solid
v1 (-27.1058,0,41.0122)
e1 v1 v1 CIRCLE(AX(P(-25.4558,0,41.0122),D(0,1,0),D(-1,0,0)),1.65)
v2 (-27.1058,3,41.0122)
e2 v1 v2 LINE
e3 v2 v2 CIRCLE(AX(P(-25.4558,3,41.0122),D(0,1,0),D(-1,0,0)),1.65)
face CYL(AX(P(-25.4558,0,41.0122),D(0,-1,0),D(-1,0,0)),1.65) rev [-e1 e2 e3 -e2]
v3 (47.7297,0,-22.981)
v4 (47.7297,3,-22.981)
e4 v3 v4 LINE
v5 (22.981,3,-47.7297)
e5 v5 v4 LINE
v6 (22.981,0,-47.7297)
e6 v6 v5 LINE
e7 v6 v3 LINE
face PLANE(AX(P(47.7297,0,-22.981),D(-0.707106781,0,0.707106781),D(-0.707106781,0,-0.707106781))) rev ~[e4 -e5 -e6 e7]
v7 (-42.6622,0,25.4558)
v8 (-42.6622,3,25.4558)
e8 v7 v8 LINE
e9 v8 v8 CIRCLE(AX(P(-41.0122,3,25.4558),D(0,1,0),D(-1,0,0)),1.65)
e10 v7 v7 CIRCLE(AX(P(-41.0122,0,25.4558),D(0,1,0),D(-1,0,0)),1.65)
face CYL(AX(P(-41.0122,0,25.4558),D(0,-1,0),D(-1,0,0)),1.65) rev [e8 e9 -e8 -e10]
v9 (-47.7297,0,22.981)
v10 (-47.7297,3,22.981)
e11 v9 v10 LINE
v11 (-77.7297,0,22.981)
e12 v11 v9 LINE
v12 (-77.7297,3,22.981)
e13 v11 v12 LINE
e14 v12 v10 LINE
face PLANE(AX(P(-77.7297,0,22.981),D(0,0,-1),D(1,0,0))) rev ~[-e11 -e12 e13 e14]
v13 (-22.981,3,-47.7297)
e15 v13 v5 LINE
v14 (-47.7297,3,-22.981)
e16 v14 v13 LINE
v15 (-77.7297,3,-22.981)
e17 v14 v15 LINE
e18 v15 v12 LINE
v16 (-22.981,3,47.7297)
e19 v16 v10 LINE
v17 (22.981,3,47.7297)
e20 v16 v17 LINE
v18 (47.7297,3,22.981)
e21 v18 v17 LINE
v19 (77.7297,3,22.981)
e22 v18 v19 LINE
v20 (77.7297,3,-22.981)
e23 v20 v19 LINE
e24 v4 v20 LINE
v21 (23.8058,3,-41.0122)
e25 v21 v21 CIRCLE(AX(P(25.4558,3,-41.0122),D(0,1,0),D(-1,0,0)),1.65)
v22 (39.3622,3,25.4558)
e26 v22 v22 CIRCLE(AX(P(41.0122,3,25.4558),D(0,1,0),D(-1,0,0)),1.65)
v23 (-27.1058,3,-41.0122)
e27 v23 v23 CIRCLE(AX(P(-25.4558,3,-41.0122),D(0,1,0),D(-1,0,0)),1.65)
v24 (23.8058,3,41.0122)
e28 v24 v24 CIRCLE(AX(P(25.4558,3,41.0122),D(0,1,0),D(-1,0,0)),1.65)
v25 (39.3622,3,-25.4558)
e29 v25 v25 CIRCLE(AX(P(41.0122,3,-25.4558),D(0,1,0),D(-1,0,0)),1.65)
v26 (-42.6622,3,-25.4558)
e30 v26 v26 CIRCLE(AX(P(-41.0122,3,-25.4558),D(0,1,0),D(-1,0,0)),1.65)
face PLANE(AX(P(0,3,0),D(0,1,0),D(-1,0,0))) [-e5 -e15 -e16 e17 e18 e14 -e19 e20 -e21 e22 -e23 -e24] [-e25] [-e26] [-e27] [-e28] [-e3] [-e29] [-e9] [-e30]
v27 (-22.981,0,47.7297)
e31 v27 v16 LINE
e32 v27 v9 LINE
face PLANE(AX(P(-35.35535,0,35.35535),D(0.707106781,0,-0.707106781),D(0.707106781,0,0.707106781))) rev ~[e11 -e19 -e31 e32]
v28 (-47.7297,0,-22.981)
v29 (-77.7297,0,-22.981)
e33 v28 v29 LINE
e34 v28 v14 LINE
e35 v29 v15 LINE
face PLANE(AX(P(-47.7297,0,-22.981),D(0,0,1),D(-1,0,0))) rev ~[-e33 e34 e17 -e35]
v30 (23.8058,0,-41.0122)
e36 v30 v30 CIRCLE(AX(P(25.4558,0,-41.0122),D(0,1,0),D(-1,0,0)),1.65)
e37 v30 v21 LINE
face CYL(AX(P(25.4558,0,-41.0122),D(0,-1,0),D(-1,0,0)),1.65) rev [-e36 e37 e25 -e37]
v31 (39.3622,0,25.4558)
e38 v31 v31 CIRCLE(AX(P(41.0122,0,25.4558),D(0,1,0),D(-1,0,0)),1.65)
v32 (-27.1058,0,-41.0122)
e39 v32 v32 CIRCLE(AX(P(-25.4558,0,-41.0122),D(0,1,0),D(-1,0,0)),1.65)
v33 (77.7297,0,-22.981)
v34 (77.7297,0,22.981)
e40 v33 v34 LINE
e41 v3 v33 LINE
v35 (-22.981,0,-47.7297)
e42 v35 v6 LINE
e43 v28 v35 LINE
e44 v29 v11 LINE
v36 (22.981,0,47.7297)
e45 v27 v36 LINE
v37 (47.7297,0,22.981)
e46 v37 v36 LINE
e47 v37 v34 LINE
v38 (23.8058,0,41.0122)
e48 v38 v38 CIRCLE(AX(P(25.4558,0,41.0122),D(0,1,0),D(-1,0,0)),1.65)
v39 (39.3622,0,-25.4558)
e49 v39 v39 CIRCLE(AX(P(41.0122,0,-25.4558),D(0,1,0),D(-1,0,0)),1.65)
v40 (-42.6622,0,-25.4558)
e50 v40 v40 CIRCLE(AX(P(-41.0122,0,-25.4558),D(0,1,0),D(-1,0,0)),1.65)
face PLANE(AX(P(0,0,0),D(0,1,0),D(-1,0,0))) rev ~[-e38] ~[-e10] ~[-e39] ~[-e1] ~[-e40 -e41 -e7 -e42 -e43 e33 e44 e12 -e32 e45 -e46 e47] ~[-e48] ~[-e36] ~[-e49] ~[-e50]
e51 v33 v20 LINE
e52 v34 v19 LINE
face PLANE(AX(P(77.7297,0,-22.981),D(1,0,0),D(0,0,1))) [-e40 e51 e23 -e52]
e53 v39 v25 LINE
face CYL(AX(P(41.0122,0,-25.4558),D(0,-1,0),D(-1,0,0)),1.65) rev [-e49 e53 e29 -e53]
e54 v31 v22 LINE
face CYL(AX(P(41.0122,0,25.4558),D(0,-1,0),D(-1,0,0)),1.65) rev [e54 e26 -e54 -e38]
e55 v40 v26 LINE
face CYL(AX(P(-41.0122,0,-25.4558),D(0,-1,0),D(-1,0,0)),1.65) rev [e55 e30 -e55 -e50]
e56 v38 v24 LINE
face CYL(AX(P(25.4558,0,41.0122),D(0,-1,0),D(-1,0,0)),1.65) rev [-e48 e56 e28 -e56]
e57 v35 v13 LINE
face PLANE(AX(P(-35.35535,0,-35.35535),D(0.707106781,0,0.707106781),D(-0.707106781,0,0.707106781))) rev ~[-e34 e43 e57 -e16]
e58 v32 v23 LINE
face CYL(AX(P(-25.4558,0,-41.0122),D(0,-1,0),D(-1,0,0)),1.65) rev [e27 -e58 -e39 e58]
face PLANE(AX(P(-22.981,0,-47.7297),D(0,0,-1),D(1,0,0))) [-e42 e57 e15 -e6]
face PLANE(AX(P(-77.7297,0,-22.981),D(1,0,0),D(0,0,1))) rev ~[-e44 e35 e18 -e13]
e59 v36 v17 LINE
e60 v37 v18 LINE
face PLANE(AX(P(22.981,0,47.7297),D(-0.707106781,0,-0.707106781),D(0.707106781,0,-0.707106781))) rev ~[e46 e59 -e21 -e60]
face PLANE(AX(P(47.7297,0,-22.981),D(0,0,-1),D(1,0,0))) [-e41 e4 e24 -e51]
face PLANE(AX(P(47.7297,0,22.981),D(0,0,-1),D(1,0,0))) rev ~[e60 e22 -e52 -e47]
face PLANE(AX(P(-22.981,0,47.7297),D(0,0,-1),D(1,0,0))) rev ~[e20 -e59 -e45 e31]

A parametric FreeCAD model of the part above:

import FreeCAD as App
import Part
import Sketcher
from FreeCAD import Vector


def add_polygon(sketch, points):
    """Adds a closed chain of lines whose ends are joined by coincident constraints."""
    first, n = sketch.GeometryCount, len(points)
    for a, b in zip(points, points[1:] + points[:1]):
        sketch.addGeometry(Part.LineSegment(App.Vector(*a, 0), App.Vector(*b, 0)), False)
    for i in range(n):
        sketch.addConstraint(Sketcher.Constraint("Coincident", first + i, 2, first + (i + 1) % n, 1))

doc = App.newDocument("Part")
params = doc.addObject("Spreadsheet::Sheet", "Params")
for row, (alias, value) in enumerate([
    ("sketch1_diameter", "3.3 mm"),
    ("sketch1_width", "30 mm"),
    ("sketch1_length", "35 mm"),
    ("pad1_length", "3 mm"),
], start=1):
    params.set(f"A{row}", alias)
    params.set(f"B{row}", "=" + value)
    params.setAlias(f"B{row}", alias)

body = doc.addObject("PartDesign::Body", "Body")

# Sketch on XZ plane
sketch1 = body.newObject("Sketcher::SketchObject", "Sketch")
sketch1.AttachmentSupport = (doc.getObject("XZ_Plane"), [""])
sketch1.MapMode = "FlatFace"
add_polygon(sketch1, [(23, 47.7), (47.7, 23), (77.7, 23), (77.7, -23), (47.7, -23), (23, -47.7), (-23, -47.7), (-47.7, -23), (-77.7, -23), (-77.7, 23), (-47.7, 23), (-23, 47.7)])  # lines 0-11
sketch1.addGeometry(Part.Circle(Vector(-25.5, 41, 0), Vector(0, 0, 1), 1.6), False)  # 12
sketch1.addGeometry(Part.Circle(Vector(25.5, 41, 0), Vector(0, 0, 1), 1.6), False)  # 13
sketch1.addGeometry(Part.Circle(Vector(-41, 25.5, 0), Vector(0, 0, 1), 1.6), False)  # 14
sketch1.addGeometry(Part.Circle(Vector(-41, -25.5, 0), Vector(0, 0, 1), 1.6), False)  # 15
sketch1.addGeometry(Part.Circle(Vector(41, 25.5, 0), Vector(0, 0, 1), 1.6), False)  # 16
sketch1.addGeometry(Part.Circle(Vector(41, -25.5, 0), Vector(0, 0, 1), 1.6), False)  # 17
sketch1.addGeometry(Part.Circle(Vector(-25.5, -41, 0), Vector(0, 0, 1), 1.6), False)  # 18
sketch1.addGeometry(Part.Circle(Vector(25.5, -41, 0), Vector(0, 0, 1), 1.6), False)  # 19
sketch1.addConstraint([
    Sketcher.Constraint("Horizontal", 1),
    Sketcher.Constraint("Vertical", 2),
    Sketcher.Constraint("Horizontal", 3),
    Sketcher.Constraint("Horizontal", 5),
    Sketcher.Constraint("Horizontal", 7),
    Sketcher.Constraint("Vertical", 8),
    Sketcher.Constraint("Horizontal", 9),
    Sketcher.Constraint("Horizontal", 11),
    Sketcher.Constraint("Equal", 12, 13),
    Sketcher.Constraint("Equal", 13, 14),
    Sketcher.Constraint("Equal", 14, 15),
    Sketcher.Constraint("Equal", 15, 16),
    Sketcher.Constraint("Equal", 16, 17),
    Sketcher.Constraint("Equal", 17, 18),
    Sketcher.Constraint("Equal", 18, 19),
    Sketcher.Constraint("Symmetric", 15, 3, 16, 3, -1, 1),
    Sketcher.Constraint("Symmetric", 14, 3, 17, 3, -1, 1),
    Sketcher.Constraint("Symmetric", 13, 3, 18, 3, -1, 1),
    Sketcher.Constraint("Symmetric", 12, 3, 19, 3, -1, 1),
    Sketcher.Constraint("Symmetric", 0, 2, 6, 2, -1, 1),
    Sketcher.Constraint("Symmetric", 2, 2, 8, 2, -1, 1),
    Sketcher.Constraint("Symmetric", 4, 2, 10, 2, -1, 1),
    Sketcher.Constraint("Symmetric", 12, 3, 13, 3, -2),
    Sketcher.Constraint("Symmetric", 14, 3, 16, 3, -2),
    Sketcher.Constraint("Symmetric", 3, 2, 6, 2, -2),
    Sketcher.Constraint("Perpendicular", 0, 4),
    Sketcher.Constraint("Perpendicular", 4, 6),
    Sketcher.Constraint("Perpendicular", 6, 10),
    Sketcher.Constraint("Vertical", 5, 2, 10, 2),
    Sketcher.Constraint("Equal", 11, 2),
    Sketcher.Constraint("Diameter", 12, 3.3),
    Sketcher.Constraint("DistanceX", 1, 1, 1, 2, 30.0),
    Sketcher.Constraint("Distance", 0, 35.0),
    Sketcher.Constraint("DistanceX", 5, 2, 5, 1, 45.962),
    Sketcher.Constraint("DistanceX", 14, 3, 13, 3, 66.468),
    Sketcher.Constraint("DistanceY", 15, 3, 12, 3, 66.468),
    Sketcher.Constraint("DistanceX", 13, 3, 0, 2, 22.274),
    Sketcher.Constraint("DistanceY", 4, 2, 17, 3, 22.274),
])
sketch1.setExpression("Constraints[42]", "Params.sketch1_diameter")
sketch1.setExpression("Constraints[43]", "Params.sketch1_width")
sketch1.setExpression("Constraints[44]", "Params.sketch1_length")
pad1 = body.newObject("PartDesign::Pad", "Pad")
pad1.Profile = sketch1
pad1.setExpression("Length", "Params.pad1_length")
pad1.Reversed = True

doc.recompute()
